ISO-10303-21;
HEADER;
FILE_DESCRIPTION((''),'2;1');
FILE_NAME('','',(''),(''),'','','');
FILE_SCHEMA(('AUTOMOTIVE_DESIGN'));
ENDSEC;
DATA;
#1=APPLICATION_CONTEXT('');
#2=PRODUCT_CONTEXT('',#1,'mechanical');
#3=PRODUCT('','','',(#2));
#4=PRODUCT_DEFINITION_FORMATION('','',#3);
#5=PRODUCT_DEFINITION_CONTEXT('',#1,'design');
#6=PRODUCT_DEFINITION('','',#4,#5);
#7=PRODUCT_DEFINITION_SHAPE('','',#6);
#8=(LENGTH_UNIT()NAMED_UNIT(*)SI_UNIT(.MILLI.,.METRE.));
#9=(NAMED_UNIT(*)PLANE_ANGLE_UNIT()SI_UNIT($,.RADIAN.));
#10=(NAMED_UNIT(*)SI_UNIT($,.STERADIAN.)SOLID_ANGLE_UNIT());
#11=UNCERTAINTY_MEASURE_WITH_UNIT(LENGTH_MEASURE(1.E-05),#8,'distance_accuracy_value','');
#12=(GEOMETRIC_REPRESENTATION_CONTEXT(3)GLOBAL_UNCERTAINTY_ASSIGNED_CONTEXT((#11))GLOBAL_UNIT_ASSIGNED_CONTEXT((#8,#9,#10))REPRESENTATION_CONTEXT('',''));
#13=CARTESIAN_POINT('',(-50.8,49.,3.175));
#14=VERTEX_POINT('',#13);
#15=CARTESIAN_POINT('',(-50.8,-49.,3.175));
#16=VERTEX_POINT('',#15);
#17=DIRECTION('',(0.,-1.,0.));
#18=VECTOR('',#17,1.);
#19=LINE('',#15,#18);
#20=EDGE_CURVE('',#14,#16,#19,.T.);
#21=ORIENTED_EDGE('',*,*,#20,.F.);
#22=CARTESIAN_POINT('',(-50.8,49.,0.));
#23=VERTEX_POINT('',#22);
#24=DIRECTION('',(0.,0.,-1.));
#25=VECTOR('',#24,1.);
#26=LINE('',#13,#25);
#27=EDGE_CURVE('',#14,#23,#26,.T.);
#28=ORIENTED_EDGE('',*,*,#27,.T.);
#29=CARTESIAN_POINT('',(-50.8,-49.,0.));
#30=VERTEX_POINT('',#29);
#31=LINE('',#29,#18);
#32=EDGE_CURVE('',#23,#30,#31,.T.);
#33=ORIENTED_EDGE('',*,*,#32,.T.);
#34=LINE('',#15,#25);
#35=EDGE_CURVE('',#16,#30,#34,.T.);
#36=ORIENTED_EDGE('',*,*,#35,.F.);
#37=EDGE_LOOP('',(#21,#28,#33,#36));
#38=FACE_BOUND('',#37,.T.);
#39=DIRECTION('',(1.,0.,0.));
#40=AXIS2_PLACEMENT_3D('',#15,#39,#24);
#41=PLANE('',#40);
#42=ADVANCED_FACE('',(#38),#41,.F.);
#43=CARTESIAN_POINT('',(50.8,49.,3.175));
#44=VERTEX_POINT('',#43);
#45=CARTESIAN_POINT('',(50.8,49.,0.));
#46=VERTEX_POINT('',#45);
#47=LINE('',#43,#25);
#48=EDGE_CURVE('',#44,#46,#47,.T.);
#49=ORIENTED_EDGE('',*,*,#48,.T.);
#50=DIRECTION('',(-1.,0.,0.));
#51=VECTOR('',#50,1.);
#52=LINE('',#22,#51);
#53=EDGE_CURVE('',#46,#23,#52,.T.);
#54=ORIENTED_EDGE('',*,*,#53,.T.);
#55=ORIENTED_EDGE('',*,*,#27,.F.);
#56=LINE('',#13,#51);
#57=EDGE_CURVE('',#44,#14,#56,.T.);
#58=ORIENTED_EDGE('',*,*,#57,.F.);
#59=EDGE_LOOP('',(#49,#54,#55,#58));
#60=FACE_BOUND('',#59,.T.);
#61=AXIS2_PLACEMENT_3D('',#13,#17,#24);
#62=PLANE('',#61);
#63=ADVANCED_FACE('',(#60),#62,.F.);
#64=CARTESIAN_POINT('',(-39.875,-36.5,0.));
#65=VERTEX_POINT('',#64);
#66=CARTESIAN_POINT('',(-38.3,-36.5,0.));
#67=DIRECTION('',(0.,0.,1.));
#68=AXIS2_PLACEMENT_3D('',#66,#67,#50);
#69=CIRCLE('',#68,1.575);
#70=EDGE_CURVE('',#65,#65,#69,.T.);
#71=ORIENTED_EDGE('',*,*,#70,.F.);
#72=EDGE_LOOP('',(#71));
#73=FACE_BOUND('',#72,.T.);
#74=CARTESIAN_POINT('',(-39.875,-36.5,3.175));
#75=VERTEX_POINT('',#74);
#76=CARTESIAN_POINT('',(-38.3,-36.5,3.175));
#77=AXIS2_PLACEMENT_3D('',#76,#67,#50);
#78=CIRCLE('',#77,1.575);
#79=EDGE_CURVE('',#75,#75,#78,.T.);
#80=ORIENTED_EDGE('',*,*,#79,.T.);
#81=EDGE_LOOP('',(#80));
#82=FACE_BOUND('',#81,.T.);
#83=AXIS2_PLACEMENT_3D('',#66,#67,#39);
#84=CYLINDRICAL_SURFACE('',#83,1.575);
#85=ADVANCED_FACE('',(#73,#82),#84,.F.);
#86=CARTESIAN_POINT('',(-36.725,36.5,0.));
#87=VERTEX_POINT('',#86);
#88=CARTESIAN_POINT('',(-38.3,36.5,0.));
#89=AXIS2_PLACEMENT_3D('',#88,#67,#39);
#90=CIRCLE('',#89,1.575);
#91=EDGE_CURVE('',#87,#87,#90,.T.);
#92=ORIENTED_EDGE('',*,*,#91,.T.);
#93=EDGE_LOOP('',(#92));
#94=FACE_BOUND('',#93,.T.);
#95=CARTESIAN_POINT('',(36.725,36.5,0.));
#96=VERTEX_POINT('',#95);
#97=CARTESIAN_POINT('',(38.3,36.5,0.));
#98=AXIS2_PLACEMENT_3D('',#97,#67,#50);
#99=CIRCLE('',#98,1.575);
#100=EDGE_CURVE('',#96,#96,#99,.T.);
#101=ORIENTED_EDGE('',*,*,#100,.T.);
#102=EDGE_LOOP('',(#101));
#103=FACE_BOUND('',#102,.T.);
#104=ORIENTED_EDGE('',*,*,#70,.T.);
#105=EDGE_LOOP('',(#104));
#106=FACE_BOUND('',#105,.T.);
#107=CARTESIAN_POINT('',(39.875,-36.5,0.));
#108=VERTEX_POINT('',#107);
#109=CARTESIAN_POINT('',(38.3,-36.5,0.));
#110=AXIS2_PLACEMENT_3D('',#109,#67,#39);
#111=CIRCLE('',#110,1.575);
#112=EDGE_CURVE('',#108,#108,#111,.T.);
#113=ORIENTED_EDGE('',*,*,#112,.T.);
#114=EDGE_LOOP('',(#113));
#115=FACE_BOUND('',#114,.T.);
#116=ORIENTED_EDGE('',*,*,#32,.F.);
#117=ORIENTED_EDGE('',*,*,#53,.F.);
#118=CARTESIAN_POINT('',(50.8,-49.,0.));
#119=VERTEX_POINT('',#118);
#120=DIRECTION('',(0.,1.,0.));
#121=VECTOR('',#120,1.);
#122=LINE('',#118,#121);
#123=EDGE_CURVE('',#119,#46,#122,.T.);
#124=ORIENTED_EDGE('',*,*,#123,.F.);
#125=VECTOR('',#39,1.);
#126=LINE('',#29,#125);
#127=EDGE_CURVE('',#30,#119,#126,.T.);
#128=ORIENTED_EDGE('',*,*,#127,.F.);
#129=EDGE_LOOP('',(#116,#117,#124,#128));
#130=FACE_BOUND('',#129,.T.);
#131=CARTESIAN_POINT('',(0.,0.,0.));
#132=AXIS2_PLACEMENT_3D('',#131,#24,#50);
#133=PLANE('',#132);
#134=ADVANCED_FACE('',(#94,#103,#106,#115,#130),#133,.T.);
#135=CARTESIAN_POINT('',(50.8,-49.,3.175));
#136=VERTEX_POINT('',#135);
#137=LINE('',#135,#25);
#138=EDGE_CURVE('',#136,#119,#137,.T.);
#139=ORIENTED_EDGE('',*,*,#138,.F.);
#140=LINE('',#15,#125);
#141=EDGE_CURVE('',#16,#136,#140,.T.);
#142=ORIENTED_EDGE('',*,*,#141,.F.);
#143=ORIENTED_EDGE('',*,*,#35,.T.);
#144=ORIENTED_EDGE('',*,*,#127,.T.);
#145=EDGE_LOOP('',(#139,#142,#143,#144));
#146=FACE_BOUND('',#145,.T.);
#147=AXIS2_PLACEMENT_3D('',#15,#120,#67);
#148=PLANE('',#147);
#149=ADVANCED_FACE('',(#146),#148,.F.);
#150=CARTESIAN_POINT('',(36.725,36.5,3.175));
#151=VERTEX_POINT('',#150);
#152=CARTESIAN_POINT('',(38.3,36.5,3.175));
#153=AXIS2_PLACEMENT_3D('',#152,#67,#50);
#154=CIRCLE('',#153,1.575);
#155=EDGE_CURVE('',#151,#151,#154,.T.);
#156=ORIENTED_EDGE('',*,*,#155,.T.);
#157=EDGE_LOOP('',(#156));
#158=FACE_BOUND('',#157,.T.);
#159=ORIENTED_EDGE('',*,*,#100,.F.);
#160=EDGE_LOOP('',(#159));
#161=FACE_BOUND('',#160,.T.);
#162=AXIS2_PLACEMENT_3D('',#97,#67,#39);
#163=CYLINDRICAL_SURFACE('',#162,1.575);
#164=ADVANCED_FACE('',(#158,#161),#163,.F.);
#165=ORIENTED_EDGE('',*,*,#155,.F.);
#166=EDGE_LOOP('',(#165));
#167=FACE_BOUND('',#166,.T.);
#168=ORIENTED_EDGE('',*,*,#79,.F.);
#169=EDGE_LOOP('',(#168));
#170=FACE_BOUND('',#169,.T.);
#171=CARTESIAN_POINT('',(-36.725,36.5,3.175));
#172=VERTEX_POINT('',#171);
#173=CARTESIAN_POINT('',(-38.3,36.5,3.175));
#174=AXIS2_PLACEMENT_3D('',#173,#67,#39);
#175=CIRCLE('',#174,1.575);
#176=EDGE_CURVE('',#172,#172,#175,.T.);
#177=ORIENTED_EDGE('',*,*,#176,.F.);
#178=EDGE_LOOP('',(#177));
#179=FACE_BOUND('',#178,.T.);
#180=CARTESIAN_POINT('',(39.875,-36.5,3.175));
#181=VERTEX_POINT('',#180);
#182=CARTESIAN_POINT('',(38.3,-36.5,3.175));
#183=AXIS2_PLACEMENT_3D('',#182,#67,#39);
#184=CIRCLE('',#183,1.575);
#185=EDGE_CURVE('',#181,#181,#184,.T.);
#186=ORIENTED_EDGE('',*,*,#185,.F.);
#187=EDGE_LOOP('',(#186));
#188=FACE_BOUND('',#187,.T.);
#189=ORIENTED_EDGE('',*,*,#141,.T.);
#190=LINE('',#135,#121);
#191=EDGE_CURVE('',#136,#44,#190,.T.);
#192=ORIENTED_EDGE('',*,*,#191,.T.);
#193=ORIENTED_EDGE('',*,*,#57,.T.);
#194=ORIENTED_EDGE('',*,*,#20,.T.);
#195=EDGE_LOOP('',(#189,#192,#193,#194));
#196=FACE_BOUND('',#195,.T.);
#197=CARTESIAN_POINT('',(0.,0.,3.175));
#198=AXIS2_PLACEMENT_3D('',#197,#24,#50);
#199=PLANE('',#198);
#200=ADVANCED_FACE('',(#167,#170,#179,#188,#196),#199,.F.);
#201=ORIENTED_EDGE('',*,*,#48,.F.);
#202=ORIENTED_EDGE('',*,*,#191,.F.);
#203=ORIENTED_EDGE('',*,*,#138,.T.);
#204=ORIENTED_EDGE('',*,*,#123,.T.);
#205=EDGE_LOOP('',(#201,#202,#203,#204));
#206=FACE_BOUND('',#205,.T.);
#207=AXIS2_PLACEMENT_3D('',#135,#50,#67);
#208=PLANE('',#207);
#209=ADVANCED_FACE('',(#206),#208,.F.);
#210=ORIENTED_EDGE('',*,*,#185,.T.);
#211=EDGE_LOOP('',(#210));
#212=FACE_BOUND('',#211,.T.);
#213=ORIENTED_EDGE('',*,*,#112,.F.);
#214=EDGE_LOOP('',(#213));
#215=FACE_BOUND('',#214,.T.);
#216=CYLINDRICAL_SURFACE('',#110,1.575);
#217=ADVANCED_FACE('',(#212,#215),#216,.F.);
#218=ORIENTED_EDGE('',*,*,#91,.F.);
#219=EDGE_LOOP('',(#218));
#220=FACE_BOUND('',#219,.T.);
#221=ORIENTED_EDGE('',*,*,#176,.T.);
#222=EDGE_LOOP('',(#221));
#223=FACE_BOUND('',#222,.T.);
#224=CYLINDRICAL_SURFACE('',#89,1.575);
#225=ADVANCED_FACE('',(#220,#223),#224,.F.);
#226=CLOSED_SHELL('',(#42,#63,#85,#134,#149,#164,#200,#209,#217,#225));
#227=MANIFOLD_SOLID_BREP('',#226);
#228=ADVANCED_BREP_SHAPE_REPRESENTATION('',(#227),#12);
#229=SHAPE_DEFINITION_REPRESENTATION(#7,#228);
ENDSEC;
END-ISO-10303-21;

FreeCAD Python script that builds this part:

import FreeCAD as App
import Part
import Sketcher
from FreeCAD import Vector
Q = App.Units.Quantity

doc = App.newDocument("Part")
body = doc.addObject("PartDesign::Body", "Body")

# Sketch on XY plane
sketch1 = doc.addObject("Sketcher::SketchObject", "Sketch")
body.addObject(sketch1)
sketch1.AttachmentSupport = (doc.XY_Plane, [""])
sketch1.MapMode = "FlatFace"
sketch1.addGeometry([
    Part.LineSegment(Vector(-51, 49, 0), Vector(-51, -49, 0)),
    Part.LineSegment(Vector(-51, -49, 0), Vector(51, -49, 0)),
    Part.LineSegment(Vector(51, -49, 0), Vector(51, 49, 0)),
    Part.LineSegment(Vector(51, 49, 0), Vector(-51, 49, 0)),
], False)
sketch1.addConstraint([
    Sketcher.Constraint("Coincident", 0, 2, 1, 1),
    Sketcher.Constraint("Coincident", 1, 2, 2, 1),
    Sketcher.Constraint("Coincident", 2, 2, 3, 1),
    Sketcher.Constraint("Coincident", 3, 2, 0, 1),
    Sketcher.Constraint("Vertical", 0),
    Sketcher.Constraint("Horizontal", 1),
    Sketcher.Constraint("Vertical", 2),
    Sketcher.Constraint("Horizontal", 3),
    Sketcher.Constraint("Symmetric", 0, 2, 2, 2, -1, 1),
    Sketcher.Constraint("DistanceX", 1, 1, 1, 2, Q("4 in")),
    Sketcher.Constraint("DistanceY", 0, 2, 0, 1, 98.0),
])
pad1 = doc.addObject("PartDesign::Pad", "Pad")
body.addObject(pad1)
pad1.Profile = sketch1
pad1.Length = Q("0.125 in")

# Sketch on XY plane
sketch2 = doc.addObject("Sketcher::SketchObject", "Sketch001")
body.addObject(sketch2)
sketch2.AttachmentSupport = (doc.XY_Plane, [""])
sketch2.MapMode = "FlatFace"
sketch2.AttachmentOffset = App.Placement(Vector(0, 0, 0.125 * 25.4), App.Rotation())
sketch2.addGeometry([
    Part.Circle(Vector(-38.3, 36.5, 0), Vector(0, 0, 1), 1.6),
    Part.Circle(Vector(38.3, 36.5, 0), Vector(0, 0, 1), 1.6),
    Part.Circle(Vector(38.3, -36.5, 0), Vector(0, 0, 1), 1.6),
    Part.Circle(Vector(-38.3, -36.5, 0), Vector(0, 0, 1), 1.6),
], False)
sketch2.addConstraint([
    Sketcher.Constraint("Equal", 0, 1),
    Sketcher.Constraint("Equal", 1, 2),
    Sketcher.Constraint("Equal", 2, 3),
    Sketcher.Constraint("Symmetric", 0, 3, 2, 3, -1, 1),
    Sketcher.Constraint("Symmetric", 1, 3, 3, 3, -1, 1),
    Sketcher.Constraint("Symmetric", 0, 3, 1, 3, -2),
    Sketcher.Constraint("Diameter", 0, 3.15),
    Sketcher.Constraint("DistanceX", 0, 3, -1, 1, 38.3),
    Sketcher.Constraint("DistanceY", -1, 1, 0, 3, 36.5),
])
pocket1 = doc.addObject("PartDesign::Pocket", "Pocket")
body.addObject(pocket1)
pocket1.Profile = sketch2
pocket1.Type = "ThroughAll"

doc.recompute()
